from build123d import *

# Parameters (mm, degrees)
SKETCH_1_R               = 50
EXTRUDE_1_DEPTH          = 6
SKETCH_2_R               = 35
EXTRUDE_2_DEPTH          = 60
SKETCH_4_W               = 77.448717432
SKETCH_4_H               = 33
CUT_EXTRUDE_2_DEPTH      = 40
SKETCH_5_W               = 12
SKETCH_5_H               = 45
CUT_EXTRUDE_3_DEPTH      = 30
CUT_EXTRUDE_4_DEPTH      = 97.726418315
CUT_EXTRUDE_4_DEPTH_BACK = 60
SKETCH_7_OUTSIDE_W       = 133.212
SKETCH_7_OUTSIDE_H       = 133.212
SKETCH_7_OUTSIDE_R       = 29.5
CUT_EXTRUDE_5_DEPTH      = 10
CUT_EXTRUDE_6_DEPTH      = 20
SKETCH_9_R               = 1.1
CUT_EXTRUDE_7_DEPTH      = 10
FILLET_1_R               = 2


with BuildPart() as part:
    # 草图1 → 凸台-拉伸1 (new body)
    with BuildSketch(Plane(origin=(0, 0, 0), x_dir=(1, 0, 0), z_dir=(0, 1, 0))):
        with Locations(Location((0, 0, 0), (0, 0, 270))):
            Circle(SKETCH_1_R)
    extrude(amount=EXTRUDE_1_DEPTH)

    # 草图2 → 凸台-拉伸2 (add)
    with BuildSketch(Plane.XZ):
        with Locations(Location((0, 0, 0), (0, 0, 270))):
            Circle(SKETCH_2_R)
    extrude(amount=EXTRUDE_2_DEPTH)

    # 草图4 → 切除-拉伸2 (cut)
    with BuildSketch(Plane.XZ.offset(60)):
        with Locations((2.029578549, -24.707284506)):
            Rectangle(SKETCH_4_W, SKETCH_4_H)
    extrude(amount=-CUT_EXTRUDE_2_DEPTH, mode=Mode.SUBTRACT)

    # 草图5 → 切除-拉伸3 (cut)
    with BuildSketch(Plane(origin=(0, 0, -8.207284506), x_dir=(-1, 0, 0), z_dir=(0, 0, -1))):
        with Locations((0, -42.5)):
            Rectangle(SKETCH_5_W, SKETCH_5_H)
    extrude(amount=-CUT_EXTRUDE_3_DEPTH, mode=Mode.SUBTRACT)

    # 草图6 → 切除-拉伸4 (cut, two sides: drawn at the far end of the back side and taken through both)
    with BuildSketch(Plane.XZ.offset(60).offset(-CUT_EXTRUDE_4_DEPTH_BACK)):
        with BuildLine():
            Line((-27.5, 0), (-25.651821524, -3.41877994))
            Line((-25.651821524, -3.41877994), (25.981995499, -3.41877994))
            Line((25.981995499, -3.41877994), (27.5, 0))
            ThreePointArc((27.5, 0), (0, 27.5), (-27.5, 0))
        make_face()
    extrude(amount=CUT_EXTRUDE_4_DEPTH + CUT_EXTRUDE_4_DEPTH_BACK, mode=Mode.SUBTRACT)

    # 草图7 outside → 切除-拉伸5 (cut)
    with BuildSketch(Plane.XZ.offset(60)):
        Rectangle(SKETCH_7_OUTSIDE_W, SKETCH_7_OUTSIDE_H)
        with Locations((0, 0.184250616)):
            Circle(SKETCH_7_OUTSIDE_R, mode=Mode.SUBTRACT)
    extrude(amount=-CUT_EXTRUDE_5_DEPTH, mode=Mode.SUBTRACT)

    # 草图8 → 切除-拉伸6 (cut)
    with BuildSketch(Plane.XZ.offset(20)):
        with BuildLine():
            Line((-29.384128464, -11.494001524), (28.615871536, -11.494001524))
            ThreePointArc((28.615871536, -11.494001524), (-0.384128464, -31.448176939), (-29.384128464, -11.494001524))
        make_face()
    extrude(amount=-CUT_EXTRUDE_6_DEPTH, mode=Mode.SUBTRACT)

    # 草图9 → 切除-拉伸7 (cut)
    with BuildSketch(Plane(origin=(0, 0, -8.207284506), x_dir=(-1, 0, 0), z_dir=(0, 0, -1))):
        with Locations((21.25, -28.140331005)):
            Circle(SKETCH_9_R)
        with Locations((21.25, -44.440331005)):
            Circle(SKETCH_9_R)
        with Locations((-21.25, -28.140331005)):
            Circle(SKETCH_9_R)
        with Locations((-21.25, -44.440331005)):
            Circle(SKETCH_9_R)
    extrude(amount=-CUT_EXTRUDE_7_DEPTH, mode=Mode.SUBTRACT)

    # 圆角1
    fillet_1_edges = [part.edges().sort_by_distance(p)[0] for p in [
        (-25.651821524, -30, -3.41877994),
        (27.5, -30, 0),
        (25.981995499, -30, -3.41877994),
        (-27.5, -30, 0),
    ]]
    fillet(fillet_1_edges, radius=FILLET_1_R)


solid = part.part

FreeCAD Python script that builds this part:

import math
import FreeCAD as App
import Part
import Sketcher
from FreeCAD import Vector


def edges_at(feature, points):
    """Names of the edges that pass closest to the given points."""
    edges = feature.Shape.Edges
    near = lambda p: min(range(len(edges)), key=lambda i: edges[i].distToShape(Part.Vertex(*p))[0])
    return sorted({f"Edge{near(p) + 1}" for p in points})

doc = App.newDocument("Part")
body = doc.addObject("PartDesign::Body", "Body")

# Sketch on XZ plane
sketch1 = body.newObject("Sketcher::SketchObject", "Sketch")
sketch1.AttachmentSupport = (doc.getObject("XZ_Plane"), [""])
sketch1.MapMode = "FlatFace"
sketch1.addGeometry(Part.Circle(Vector(0, 0, 0), Vector(0, 0, 1), 50), False)
sketch1.addConstraint([
    Sketcher.Constraint("Coincident", 0, 3, -1, 1),
    Sketcher.Constraint("Diameter", 0, 100.0),
])
pad1 = body.newObject("PartDesign::Pad", "Pad")
pad1.Profile = sketch1
pad1.Length = 6
pad1.Reversed = True

# Sketch on XZ plane
sketch2 = body.newObject("Sketcher::SketchObject", "Sketch001")
sketch2.AttachmentSupport = (doc.getObject("XZ_Plane"), [""])
sketch2.MapMode = "FlatFace"
sketch2.addGeometry(Part.Circle(Vector(0, 0, 0), Vector(0, 0, 1), 35), False)
sketch2.addConstraint([
    Sketcher.Constraint("Coincident", 0, 3, -1, 1),
    Sketcher.Constraint("Diameter", 0, 70.0),
])
pad2 = body.newObject("PartDesign::Pad", "Pad001")
pad2.Profile = sketch2
pad2.Length = 60

# Sketch on XZ plane
sketch3 = body.newObject("Sketcher::SketchObject", "Sketch002")
sketch3.AttachmentSupport = (doc.getObject("XZ_Plane"), [""])
sketch3.MapMode = "FlatFace"
sketch3.AttachmentOffset = App.Placement(Vector(0, 0, 60), App.Rotation())
sketch3.addGeometry([
    Part.LineSegment(Vector(-36.69478, -8.207285, 0), Vector(-36.69478, -41.207285, 0)),
    Part.LineSegment(Vector(-36.69478, -41.207285, 0), Vector(40.753937, -41.207285, 0)),
    Part.LineSegment(Vector(40.753937, -41.207285, 0), Vector(40.753937, -8.207285, 0)),
    Part.LineSegment(Vector(40.753937, -8.207285, 0), Vector(-36.69478, -8.207285, 0)),
], False)
sketch3.addConstraint([
    Sketcher.Constraint("Coincident", 0, 2, 1, 1),
    Sketcher.Constraint("Coincident", 1, 2, 2, 1),
    Sketcher.Constraint("Coincident", 2, 2, 3, 1),
    Sketcher.Constraint("Coincident", 3, 2, 0, 1),
    Sketcher.Constraint("Vertical", 0),
    Sketcher.Constraint("Horizontal", 1),
    Sketcher.Constraint("Vertical", 2),
    Sketcher.Constraint("Horizontal", 3),
    Sketcher.Constraint("DistanceY", 0, 2, 0, 1, 33.0),
    Sketcher.Constraint("DistanceX", 1, 1, 1, 2, 77.448717),
    Sketcher.Constraint("DistanceX", 0, 2, -1, 1, 36.69478),
    Sketcher.Constraint("DistanceY", 0, 2, -1, 1, 41.207285),
])
pocket1 = body.newObject("PartDesign::Pocket", "Pocket")
pocket1.Profile = sketch3
pocket1.Length = 40

# Sketch on XY plane
sketch4 = body.newObject("Sketcher::SketchObject", "Sketch003")
sketch4.AttachmentSupport = (doc.getObject("XY_Plane"), [""])
sketch4.MapMode = "FlatFace"
sketch4.AttachmentOffset = App.Placement(Vector(0, 0, -8.207285), App.Rotation())
sketch4.addGeometry([
    Part.LineSegment(Vector(6, -20, 0), Vector(6, -65, 0)),
    Part.LineSegment(Vector(6, -65, 0), Vector(-6, -65, 0)),
    Part.LineSegment(Vector(-6, -65, 0), Vector(-6, -20, 0)),
    Part.LineSegment(Vector(-6, -20, 0), Vector(6, -20, 0)),
], False)
sketch4.addConstraint([
    Sketcher.Constraint("Coincident", 0, 2, 1, 1),
    Sketcher.Constraint("Coincident", 1, 2, 2, 1),
    Sketcher.Constraint("Coincident", 2, 2, 3, 1),
    Sketcher.Constraint("Coincident", 3, 2, 0, 1),
    Sketcher.Constraint("Vertical", 0),
    Sketcher.Constraint("Horizontal", 1),
    Sketcher.Constraint("Vertical", 2),
    Sketcher.Constraint("Horizontal", 3),
    Sketcher.Constraint("DistanceX", 1, 2, 1, 1, 12.0),
    Sketcher.Constraint("DistanceY", 0, 2, 0, 1, 45.0),
    Sketcher.Constraint("DistanceX", -1, 1, 0, 2, 6.0),
    Sketcher.Constraint("DistanceY", 0, 2, -1, 1, 65.0),
])
pocket2 = body.newObject("PartDesign::Pocket", "Pocket001")
pocket2.Profile = sketch4
pocket2.Length = 30
pocket2.Reversed = True

# Sketch on XZ plane
sketch5 = body.newObject("Sketcher::SketchObject", "Sketch004")
sketch5.AttachmentSupport = (doc.getObject("XZ_Plane"), [""])
sketch5.MapMode = "FlatFace"
sketch5.AttachmentOffset = App.Placement(Vector(0, 0, 60), App.Rotation())
sketch5.addGeometry([
    Part.LineSegment(Vector(-27.5, 0, 0), Vector(-25.651822, -3.41878, 0)),
    Part.LineSegment(Vector(-25.651822, -3.41878, 0), Vector(25.981995, -3.41878, 0)),
    Part.LineSegment(Vector(25.981995, -3.41878, 0), Vector(27.5, 0, 0)),
    Part.ArcOfCircle(Part.Circle(Vector(0, 0, 0), Vector(0, 0, 1), 27.5), math.radians(0), math.radians(180)),
], False)
sketch5.addConstraint([
    Sketcher.Constraint("Coincident", 0, 2, 1, 1),
    Sketcher.Constraint("Coincident", 1, 2, 2, 1),
    Sketcher.Constraint("Coincident", 2, 2, 3, 1),
    Sketcher.Constraint("Coincident", 3, 2, 0, 1),
    Sketcher.Constraint("Horizontal", 1),
    Sketcher.Constraint("Coincident", 3, 3, -1, 1),
    Sketcher.Constraint("PointOnObject", 2, 2, -1),
    Sketcher.Constraint("PointOnObject", 3, 2, -1),
    Sketcher.Constraint("Radius", 3, 27.5),
    Sketcher.Constraint("Distance", 2, 3.740641),
    Sketcher.Constraint("DistanceX", 1, 1, 1, 2, 51.633817),
    Sketcher.Constraint("DistanceX", 0, 2, -1, 1, 25.651822),
])
pocket3 = body.newObject("PartDesign::Pocket", "Pocket002")
pocket3.Profile = sketch5
pocket3.Type = "TwoLengths"
pocket3.Length = 97.726418
pocket3.Length2 = 60
pocket3.Reversed = True

# Sketch on XZ plane
sketch6 = body.newObject("Sketcher::SketchObject", "Sketch005")
sketch6.AttachmentSupport = (doc.getObject("XZ_Plane"), [""])
sketch6.MapMode = "FlatFace"
sketch6.AttachmentOffset = App.Placement(Vector(0, 0, 60), App.Rotation())
sketch6.addGeometry([
    Part.LineSegment(Vector(-66.606, 66.606, 0), Vector(-66.606, -66.606, 0)),  # 0
    Part.LineSegment(Vector(-66.606, -66.606, 0), Vector(66.606, -66.606, 0)),  # 1
    Part.LineSegment(Vector(66.606, -66.606, 0), Vector(66.606, 66.606, 0)),  # 2
    Part.LineSegment(Vector(66.606, 66.606, 0), Vector(-66.606, 66.606, 0)),  # 3
    Part.Circle(Vector(0, 0.184251, 0), Vector(0, 0, 1), 29.5),  # 4
], False)
sketch6.addConstraint([
    Sketcher.Constraint("Coincident", 0, 2, 1, 1),
    Sketcher.Constraint("Coincident", 1, 2, 2, 1),
    Sketcher.Constraint("Coincident", 2, 2, 3, 1),
    Sketcher.Constraint("Coincident", 3, 2, 0, 1),
    Sketcher.Constraint("Vertical", 0),
    Sketcher.Constraint("Horizontal", 1),
    Sketcher.Constraint("Vertical", 2),
    Sketcher.Constraint("Horizontal", 3),
    Sketcher.Constraint("Symmetric", 0, 2, 2, 2, -1, 1),
    Sketcher.Constraint("PointOnObject", 4, 3, -2),
    Sketcher.Constraint("Equal", 3, 0),
    Sketcher.Constraint("Diameter", 4, 59.0),
    Sketcher.Constraint("DistanceX", 1, 1, 1, 2, 133.212),
    Sketcher.Constraint("DistanceY", -1, 1, 4, 3, 0.184251),
])
pocket4 = body.newObject("PartDesign::Pocket", "Pocket003")
pocket4.Profile = sketch6
pocket4.Length = 10

# Sketch on XZ plane
sketch7 = body.newObject("Sketcher::SketchObject", "Sketch006")
sketch7.AttachmentSupport = (doc.getObject("XZ_Plane"), [""])
sketch7.MapMode = "FlatFace"
sketch7.AttachmentOffset = App.Placement(Vector(0, 0, 20), App.Rotation())
sketch7.addGeometry([
    Part.LineSegment(Vector(28.615872, -11.494002, 0), Vector(-29.384128, -11.494002, 0)),
    Part.ArcOfCircle(Part.Circle(Vector(-0.384128, -0.397806, 0), Vector(0, 0, 1), 31.050371), math.radians(-159.061777), math.radians(-20.938223)),
], False)
sketch7.addConstraint([
    Sketcher.Constraint("Coincident", 0, 1, 1, 2),
    Sketcher.Constraint("Coincident", 1, 1, 0, 2),
    Sketcher.Constraint("Horizontal", 0),
    Sketcher.Constraint("DistanceX", 0, 2, 0, 1, 58.0),
    Sketcher.Constraint("Radius", 1, 31.050371),
    Sketcher.Constraint("DistanceY", 0, 1, -1, 1, 11.494002),
    Sketcher.Constraint("DistanceX", 1, 3, -1, 1, 0.384128),
])
pocket5 = body.newObject("PartDesign::Pocket", "Pocket004")
pocket5.Profile = sketch7
pocket5.Length = 20

# Sketch on XY plane
sketch8 = body.newObject("Sketcher::SketchObject", "Sketch007")
sketch8.AttachmentSupport = (doc.getObject("XY_Plane"), [""])
sketch8.MapMode = "FlatFace"
sketch8.AttachmentOffset = App.Placement(Vector(0, 0, -8.207285), App.Rotation())
sketch8.addGeometry([
    Part.Circle(Vector(-21.25, -28.140331, 0), Vector(0, 0, 1), 1.1),
    Part.Circle(Vector(-21.25, -44.440331, 0), Vector(0, 0, 1), 1.1),
    Part.Circle(Vector(21.25, -28.140331, 0), Vector(0, 0, 1), 1.1),
    Part.Circle(Vector(21.25, -44.440331, 0), Vector(0, 0, 1), 1.1),
], False)
sketch8.addConstraint([
    Sketcher.Constraint("Equal", 0, 1),
    Sketcher.Constraint("Equal", 1, 2),
    Sketcher.Constraint("Equal", 2, 3),
    Sketcher.Constraint("Symmetric", 0, 3, 2, 3, -2),
    Sketcher.Constraint("Symmetric", 1, 3, 3, 3, -2),
    Sketcher.Constraint("Vertical", 0, 3, 1, 3),
    Sketcher.Constraint("Diameter", 0, 2.2),
    Sketcher.Constraint("DistanceY", 1, 3, 0, 3, 16.3),
    Sketcher.Constraint("DistanceX", 0, 3, 2, 3, 42.5),
    Sketcher.Constraint("DistanceY", 0, 3, -1, 1, 28.140331),
])
pocket6 = body.newObject("PartDesign::Pocket", "Pocket005")
pocket6.Profile = sketch8
pocket6.Length = 10
pocket6.Reversed = True
doc.recompute()

fillet = body.newObject("PartDesign::Fillet", "Fillet")
fillet.Base = (pocket6, edges_at(pocket6, [
    (-25.652, -30, -3.419),
    (27.5, -30, 0),
    (25.982, -30, -3.419),
    (-27.5, -30, 0),
]))
fillet.Radius = 2

doc.recompute()
